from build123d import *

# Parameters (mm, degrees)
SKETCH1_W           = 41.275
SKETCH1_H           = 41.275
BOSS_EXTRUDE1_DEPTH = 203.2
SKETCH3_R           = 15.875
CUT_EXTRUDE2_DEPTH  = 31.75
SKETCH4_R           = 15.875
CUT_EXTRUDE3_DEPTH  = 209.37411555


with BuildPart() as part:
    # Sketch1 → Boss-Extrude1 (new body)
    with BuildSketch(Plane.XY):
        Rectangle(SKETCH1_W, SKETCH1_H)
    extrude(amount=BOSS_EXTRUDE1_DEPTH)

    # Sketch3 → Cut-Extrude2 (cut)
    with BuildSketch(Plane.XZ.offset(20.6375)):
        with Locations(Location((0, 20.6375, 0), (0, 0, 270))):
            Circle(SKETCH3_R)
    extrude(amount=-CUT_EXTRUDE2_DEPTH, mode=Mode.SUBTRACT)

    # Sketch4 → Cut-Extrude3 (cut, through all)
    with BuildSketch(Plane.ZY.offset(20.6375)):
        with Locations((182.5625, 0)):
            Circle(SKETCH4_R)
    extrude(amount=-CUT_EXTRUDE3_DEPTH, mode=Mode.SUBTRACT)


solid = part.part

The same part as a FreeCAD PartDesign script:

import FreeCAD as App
import Part
import Sketcher
from FreeCAD import Vector
Q = App.Units.Quantity

doc = App.newDocument("Part")
body = doc.addObject("PartDesign::Body", "Body")

# Sketch on XY plane
sketch1 = body.newObject("Sketcher::SketchObject", "Sketch")
sketch1.AttachmentSupport = (doc.getObject("XY_Plane"), [""])
sketch1.MapMode = "FlatFace"
sketch1.addGeometry([
    Part.LineSegment(Vector(-21, 21, 0), Vector(-21, -21, 0)),
    Part.LineSegment(Vector(-21, -21, 0), Vector(21, -21, 0)),
    Part.LineSegment(Vector(21, -21, 0), Vector(21, 21, 0)),
    Part.LineSegment(Vector(21, 21, 0), Vector(-21, 21, 0)),
], False)
sketch1.addConstraint([
    Sketcher.Constraint("Coincident", 0, 2, 1, 1),
    Sketcher.Constraint("Coincident", 1, 2, 2, 1),
    Sketcher.Constraint("Coincident", 2, 2, 3, 1),
    Sketcher.Constraint("Coincident", 3, 2, 0, 1),
    Sketcher.Constraint("Vertical", 0),
    Sketcher.Constraint("Horizontal", 1),
    Sketcher.Constraint("Vertical", 2),
    Sketcher.Constraint("Horizontal", 3),
    Sketcher.Constraint("Symmetric", 0, 2, 2, 2, -1, 1),
    Sketcher.Constraint("Equal", 3, 0),
    Sketcher.Constraint("DistanceX", 1, 1, 1, 2, Q("1.625 in")),
])
pad1 = body.newObject("PartDesign::Pad", "Pad")
pad1.Profile = sketch1
pad1.Length = Q("8 in")

# Sketch on XZ plane
sketch2 = body.newObject("Sketcher::SketchObject", "Sketch001")
sketch2.AttachmentSupport = (doc.getObject("XZ_Plane"), [""])
sketch2.MapMode = "FlatFace"
sketch2.AttachmentOffset = App.Placement(Vector(0, 0, 0.8125 * 25.4), App.Rotation())
sketch2.addGeometry(Part.Circle(Vector(0, 21, 0), Vector(0, 0, 1), 16), False)
sketch2.addConstraint([
    Sketcher.Constraint("PointOnObject", 0, 3, -2),
    Sketcher.Constraint("Diameter", 0, Q("1.25 in")),
    Sketcher.Constraint("DistanceY", -1, 1, 0, 3, Q("0.8125 in")),
])
pocket1 = body.newObject("PartDesign::Pocket", "Pocket")
pocket1.Profile = sketch2
pocket1.Length = Q("1.25 in")

# Sketch on YZ plane
sketch3 = body.newObject("Sketcher::SketchObject", "Sketch002")
sketch3.AttachmentSupport = (doc.getObject("YZ_Plane"), [""])
sketch3.MapMode = "FlatFace"
sketch3.AttachmentOffset = App.Placement(Vector(0, 0, -0.8125 * 25.4), App.Rotation())
sketch3.addGeometry(Part.Circle(Vector(0, 183, 0), Vector(0, 0, 1), 16), False)
sketch3.addConstraint([
    Sketcher.Constraint("PointOnObject", 0, 3, -2),
    Sketcher.Constraint("Diameter", 0, Q("1.25 in")),
    Sketcher.Constraint("DistanceY", -1, 1, 0, 3, Q("7.1875 in")),
])
pocket2 = body.newObject("PartDesign::Pocket", "Pocket001")
pocket2.Profile = sketch3
pocket2.Type = "ThroughAll"
pocket2.Reversed = True

doc.recompute()
